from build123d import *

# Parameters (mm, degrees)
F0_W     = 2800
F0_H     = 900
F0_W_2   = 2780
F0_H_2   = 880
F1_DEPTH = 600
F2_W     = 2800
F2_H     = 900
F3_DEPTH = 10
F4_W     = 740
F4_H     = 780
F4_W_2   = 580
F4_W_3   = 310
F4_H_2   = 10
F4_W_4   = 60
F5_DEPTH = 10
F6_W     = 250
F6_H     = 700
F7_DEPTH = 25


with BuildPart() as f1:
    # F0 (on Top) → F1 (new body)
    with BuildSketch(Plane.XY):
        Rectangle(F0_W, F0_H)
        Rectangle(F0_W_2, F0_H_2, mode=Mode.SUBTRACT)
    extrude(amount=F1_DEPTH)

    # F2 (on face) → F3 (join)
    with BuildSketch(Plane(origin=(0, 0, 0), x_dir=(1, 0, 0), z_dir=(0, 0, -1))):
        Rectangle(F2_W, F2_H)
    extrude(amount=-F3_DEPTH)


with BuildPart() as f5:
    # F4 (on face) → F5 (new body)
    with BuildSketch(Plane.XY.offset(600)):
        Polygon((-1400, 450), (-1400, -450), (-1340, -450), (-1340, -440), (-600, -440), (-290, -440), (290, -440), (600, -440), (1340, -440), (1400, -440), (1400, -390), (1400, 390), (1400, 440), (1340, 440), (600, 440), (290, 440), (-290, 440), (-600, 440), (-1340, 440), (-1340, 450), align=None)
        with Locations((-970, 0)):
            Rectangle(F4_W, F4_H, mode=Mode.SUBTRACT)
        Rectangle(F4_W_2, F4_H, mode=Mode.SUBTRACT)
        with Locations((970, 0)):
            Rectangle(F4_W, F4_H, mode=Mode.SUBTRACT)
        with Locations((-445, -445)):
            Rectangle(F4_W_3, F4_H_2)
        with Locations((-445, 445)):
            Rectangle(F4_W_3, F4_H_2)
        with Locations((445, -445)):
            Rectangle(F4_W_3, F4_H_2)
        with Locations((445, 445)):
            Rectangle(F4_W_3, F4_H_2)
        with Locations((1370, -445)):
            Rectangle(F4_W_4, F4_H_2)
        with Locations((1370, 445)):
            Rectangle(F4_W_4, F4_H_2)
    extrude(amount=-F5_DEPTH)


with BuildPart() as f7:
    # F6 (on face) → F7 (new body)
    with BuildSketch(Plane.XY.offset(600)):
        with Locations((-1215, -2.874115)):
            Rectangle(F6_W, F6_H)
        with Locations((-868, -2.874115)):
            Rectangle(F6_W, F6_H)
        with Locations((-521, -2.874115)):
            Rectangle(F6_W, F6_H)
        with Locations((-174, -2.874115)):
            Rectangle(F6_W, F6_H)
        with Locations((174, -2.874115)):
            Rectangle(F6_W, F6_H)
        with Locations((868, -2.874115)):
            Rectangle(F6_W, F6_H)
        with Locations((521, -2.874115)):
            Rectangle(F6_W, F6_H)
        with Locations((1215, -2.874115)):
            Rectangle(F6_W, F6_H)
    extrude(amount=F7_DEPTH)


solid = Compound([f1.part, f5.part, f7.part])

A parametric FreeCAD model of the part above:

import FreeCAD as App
import Part
import Sketcher

V = App.Vector

doc = App.newDocument("Part")
body = doc.addObject("PartDesign::Body", "Body")

sketch1 = doc.addObject("Sketcher::SketchObject", "Sketch")
body.addObject(sketch1)
sketch1.AttachmentSupport = (doc.XY_Plane, [""])
sketch1.MapMode = "FlatFace"
sketch1.addGeometry([
    Part.LineSegment(V(-1400, 450, 0), V(-1400, -450, 0)),
    Part.LineSegment(V(-1400, -450, 0), V(1400, -450, 0)),
    Part.LineSegment(V(1400, -450, 0), V(1400, 450, 0)),
    Part.LineSegment(V(1400, 450, 0), V(-1400, 450, 0)),
    Part.LineSegment(V(1390, -440, 0), V(-1390, -440, 0)),
    Part.LineSegment(V(-1390, -440, 0), V(-1390, 440, 0)),
    Part.LineSegment(V(-1390, 440, 0), V(1390, 440, 0)),
    Part.LineSegment(V(1390, 440, 0), V(1390, -440, 0)),
], False)
sketch1.addConstraint([
    Sketcher.Constraint("Coincident", 0, 2, 1, 1),
    Sketcher.Constraint("Coincident", 1, 2, 2, 1),
    Sketcher.Constraint("Coincident", 2, 2, 3, 1),
    Sketcher.Constraint("Coincident", 3, 2, 0, 1),
    Sketcher.Constraint("Coincident", 4, 2, 5, 1),
    Sketcher.Constraint("Coincident", 5, 2, 6, 1),
    Sketcher.Constraint("Coincident", 6, 2, 7, 1),
    Sketcher.Constraint("Coincident", 7, 2, 4, 1),
    Sketcher.Constraint("Vertical", 0),
    Sketcher.Constraint("Horizontal", 1),
    Sketcher.Constraint("Vertical", 2),
    Sketcher.Constraint("Horizontal", 3),
    Sketcher.Constraint("Horizontal", 4),
    Sketcher.Constraint("Vertical", 5),
    Sketcher.Constraint("Horizontal", 6),
    Sketcher.Constraint("Vertical", 7),
    Sketcher.Constraint("Symmetric", 0, 2, 2, 2, -1, 1),
    Sketcher.Constraint("Symmetric", 4, 2, 6, 2, -1, 1),
    Sketcher.Constraint("DistanceX", 1, 1, 1, 2, 2800.0),
    Sketcher.Constraint("DistanceX", 4, 2, 4, 1, 2780.0),
    Sketcher.Constraint("DistanceY", 0, 2, 0, 1, 900.0),
    Sketcher.Constraint("DistanceY", 5, 1, 5, 2, 880.0),
])
pad1 = doc.addObject("PartDesign::Pad", "Pad")
body.addObject(pad1)
pad1.Profile = sketch1
pad1.Length = 600

sketch2 = doc.addObject("Sketcher::SketchObject", "Sketch001")
body.addObject(sketch2)
sketch2.AttachmentSupport = (doc.XY_Plane, [""])
sketch2.MapMode = "FlatFace"
sketch2.addGeometry([
    Part.LineSegment(V(-1400, -450, 0), V(-1400, 450, 0)),
    Part.LineSegment(V(-1400, 450, 0), V(1400, 450, 0)),
    Part.LineSegment(V(1400, 450, 0), V(1400, -450, 0)),
    Part.LineSegment(V(1400, -450, 0), V(-1400, -450, 0)),
], False)
sketch2.addConstraint([
    Sketcher.Constraint("Coincident", 0, 2, 1, 1),
    Sketcher.Constraint("Coincident", 1, 2, 2, 1),
    Sketcher.Constraint("Coincident", 2, 2, 3, 1),
    Sketcher.Constraint("Coincident", 3, 2, 0, 1),
    Sketcher.Constraint("Vertical", 0),
    Sketcher.Constraint("Horizontal", 1),
    Sketcher.Constraint("Vertical", 2),
    Sketcher.Constraint("Horizontal", 3),
    Sketcher.Constraint("Symmetric", 0, 2, 2, 2, -1, 1),
    Sketcher.Constraint("DistanceX", 1, 1, 1, 2, 2800.0),
    Sketcher.Constraint("DistanceY", 0, 1, 0, 2, 900.0),
])
pad2 = doc.addObject("PartDesign::Pad", "Pad001")
body.addObject(pad2)
pad2.Profile = sketch2
pad2.Length = 10
body2 = doc.addObject("PartDesign::Body", "Body001")

sketch3 = doc.addObject("Sketcher::SketchObject", "Sketch002")
body2.addObject(sketch3)
sketch3.AttachmentSupport = (doc.getObject("XY_Plane001"), [""])
sketch3.MapMode = "FlatFace"
sketch3.AttachmentOffset = App.Placement(V(0, 0, 600), App.Rotation())
sketch3.addGeometry([
    Part.LineSegment(V(-1400, 450, 0), V(-1400, -450, 0)),
    Part.LineSegment(V(-1400, -450, 0), V(-1340, -450, 0)),
    Part.LineSegment(V(-1340, -450, 0), V(-1340, -440, 0)),
    Part.LineSegment(V(-1340, -440, 0), V(-600, -440, 0)),
    Part.LineSegment(V(-600, -440, 0), V(-600, -450, 0)),
    Part.LineSegment(V(-600, -450, 0), V(-290, -450, 0)),
    Part.LineSegment(V(-290, -450, 0), V(-290, -440, 0)),
    Part.LineSegment(V(-290, -440, 0), V(290, -440, 0)),
    Part.LineSegment(V(290, -440, 0), V(290, -450, 0)),
    Part.LineSegment(V(290, -450, 0), V(600, -450, 0)),
    Part.LineSegment(V(600, -450, 0), V(600, -440, 0)),
    Part.LineSegment(V(600, -440, 0), V(1340, -440, 0)),
    Part.LineSegment(V(1340, -440, 0), V(1340, -450, 0)),
    Part.LineSegment(V(1340, -450, 0), V(1400, -450, 0)),
    Part.LineSegment(V(1400, -450, 0), V(1400, 450, 0)),
    Part.LineSegment(V(1400, 450, 0), V(1340, 450, 0)),
    Part.LineSegment(V(1340, 450, 0), V(1340, 440, 0)),
    Part.LineSegment(V(1340, 440, 0), V(600, 440, 0)),
    Part.LineSegment(V(600, 440, 0), V(600, 450, 0)),
    Part.LineSegment(V(600, 450, 0), V(290, 450, 0)),
    Part.LineSegment(V(290, 450, 0), V(290, 440, 0)),
    Part.LineSegment(V(290, 440, 0), V(-290, 440, 0)),
    Part.LineSegment(V(-290, 440, 0), V(-290, 450, 0)),
    Part.LineSegment(V(-290, 450, 0), V(-600, 450, 0)),
    Part.LineSegment(V(-600, 450, 0), V(-600, 440, 0)),
    Part.LineSegment(V(-600, 440, 0), V(-1340, 440, 0)),
    Part.LineSegment(V(-1340, 440, 0), V(-1340, 450, 0)),
    Part.LineSegment(V(-1340, 450, 0), V(-1400, 450, 0)),
    Part.LineSegment(V(-600, -390, 0), V(-1340, -390, 0)),
    Part.LineSegment(V(-1340, -390, 0), V(-1340, 390, 0)),
    Part.LineSegment(V(-1340, 390, 0), V(-600, 390, 0)),
    Part.LineSegment(V(-600, 390, 0), V(-600, -390, 0)),
    Part.LineSegment(V(290, -390, 0), V(-290, -390, 0)),
    Part.LineSegment(V(-290, -390, 0), V(-290, 390, 0)),
    Part.LineSegment(V(-290, 390, 0), V(290, 390, 0)),
    Part.LineSegment(V(290, 390, 0), V(290, -390, 0)),
    Part.LineSegment(V(1340, -390, 0), V(600, -390, 0)),
    Part.LineSegment(V(600, -390, 0), V(600, 390, 0)),
    Part.LineSegment(V(600, 390, 0), V(1340, 390, 0)),
    Part.LineSegment(V(1340, 390, 0), V(1340, -390, 0)),
], False)
sketch3.addConstraint([
    Sketcher.Constraint("Coincident", 0, 2, 1, 1),
    Sketcher.Constraint("Coincident", 1, 2, 2, 1),
    Sketcher.Constraint("Coincident", 2, 2, 3, 1),
    Sketcher.Constraint("Coincident", 3, 2, 4, 1),
    Sketcher.Constraint("Coincident", 4, 2, 5, 1),
    Sketcher.Constraint("Coincident", 5, 2, 6, 1),
    Sketcher.Constraint("Coincident", 6, 2, 7, 1),
    Sketcher.Constraint("Coincident", 7, 2, 8, 1),
    Sketcher.Constraint("Coincident", 8, 2, 9, 1),
    Sketcher.Constraint("Coincident", 9, 2, 10, 1),
    Sketcher.Constraint("Coincident", 10, 2, 11, 1),
    Sketcher.Constraint("Coincident", 11, 2, 12, 1),
    Sketcher.Constraint("Coincident", 12, 2, 13, 1),
    Sketcher.Constraint("Coincident", 13, 2, 14, 1),
    Sketcher.Constraint("Coincident", 14, 2, 15, 1),
    Sketcher.Constraint("Coincident", 15, 2, 16, 1),
    Sketcher.Constraint("Coincident", 16, 2, 17, 1),
    Sketcher.Constraint("Coincident", 17, 2, 18, 1),
    Sketcher.Constraint("Coincident", 18, 2, 19, 1),
    Sketcher.Constraint("Coincident", 19, 2, 20, 1),
    Sketcher.Constraint("Coincident", 20, 2, 21, 1),
    Sketcher.Constraint("Coincident", 21, 2, 22, 1),
    Sketcher.Constraint("Coincident", 22, 2, 23, 1),
    Sketcher.Constraint("Coincident", 23, 2, 24, 1),
    Sketcher.Constraint("Coincident", 24, 2, 25, 1),
    Sketcher.Constraint("Coincident", 25, 2, 26, 1),
    Sketcher.Constraint("Coincident", 26, 2, 27, 1),
    Sketcher.Constraint("Coincident", 27, 2, 0, 1),
    Sketcher.Constraint("Coincident", 28, 2, 29, 1),
    Sketcher.Constraint("Coincident", 29, 2, 30, 1),
    Sketcher.Constraint("Coincident", 30, 2, 31, 1),
    Sketcher.Constraint("Coincident", 31, 2, 28, 1),
    Sketcher.Constraint("Coincident", 32, 2, 33, 1),
    Sketcher.Constraint("Coincident", 33, 2, 34, 1),
    Sketcher.Constraint("Coincident", 34, 2, 35, 1),
    Sketcher.Constraint("Coincident", 35, 2, 32, 1),
    Sketcher.Constraint("Coincident", 36, 2, 37, 1),
    Sketcher.Constraint("Coincident", 37, 2, 38, 1),
    Sketcher.Constraint("Coincident", 38, 2, 39, 1),
    Sketcher.Constraint("Coincident", 39, 2, 36, 1),
    Sketcher.Constraint("Vertical", 0),
    Sketcher.Constraint("Horizontal", 1),
    Sketcher.Constraint("Vertical", 2),
    Sketcher.Constraint("Horizontal", 3),
    Sketcher.Constraint("Vertical", 4),
    Sketcher.Constraint("Horizontal", 5),
    Sketcher.Constraint("Vertical", 6),
    Sketcher.Constraint("Horizontal", 7),
    Sketcher.Constraint("Vertical", 8),
    Sketcher.Constraint("Horizontal", 9),
    Sketcher.Constraint("Vertical", 10),
    Sketcher.Constraint("Horizontal", 11),
    Sketcher.Constraint("Vertical", 12),
    Sketcher.Constraint("Horizontal", 13),
    Sketcher.Constraint("Vertical", 14),
    Sketcher.Constraint("Horizontal", 15),
    Sketcher.Constraint("Vertical", 16),
    Sketcher.Constraint("Horizontal", 17),
    Sketcher.Constraint("Vertical", 18),
    Sketcher.Constraint("Horizontal", 19),
    Sketcher.Constraint("Vertical", 20),
    Sketcher.Constraint("Horizontal", 21),
    Sketcher.Constraint("Vertical", 22),
    Sketcher.Constraint("Horizontal", 23),
    Sketcher.Constraint("Vertical", 24),
    Sketcher.Constraint("Horizontal", 25),
    Sketcher.Constraint("Vertical", 26),
    Sketcher.Constraint("Horizontal", 27),
    Sketcher.Constraint("Horizontal", 28),
    Sketcher.Constraint("Vertical", 29),
    Sketcher.Constraint("Horizontal", 30),
    Sketcher.Constraint("Vertical", 31),
    Sketcher.Constraint("Horizontal", 32),
    Sketcher.Constraint("Vertical", 33),
    Sketcher.Constraint("Horizontal", 34),
    Sketcher.Constraint("Vertical", 35),
    Sketcher.Constraint("Horizontal", 36),
    Sketcher.Constraint("Vertical", 37),
    Sketcher.Constraint("Horizontal", 38),
    Sketcher.Constraint("Vertical", 39),
    Sketcher.Constraint("Symmetric", 0, 2, 14, 2, -1, 1),
    Sketcher.Constraint("Symmetric", 2, 2, 16, 2, -1, 1),
    Sketcher.Constraint("Symmetric", 4, 2, 18, 2, -1, 1),
    Sketcher.Constraint("Symmetric", 6, 2, 20, 2, -1, 1),
    Sketcher.Constraint("Symmetric", 8, 2, 22, 2, -1, 1),
    Sketcher.Constraint("Symmetric", 10, 2, 24, 2, -1, 1),
    Sketcher.Constraint("Symmetric", 12, 2, 26, 2, -1, 1),
    Sketcher.Constraint("Symmetric", 32, 2, 34, 2, -1, 1),
    Sketcher.Constraint("Symmetric", 30, 2, 36, 2, -1, 1),
    Sketcher.Constraint("Symmetric", 28, 2, 38, 2, -1, 1),
    Sketcher.Constraint("Symmetric", 5, 2, 8, 2, -2),
    Sketcher.Constraint("Symmetric", 3, 2, 10, 2, -2),
    Sketcher.Constraint("Symmetric", 1, 2, 12, 2, -2),
    Sketcher.Constraint("Horizontal", 1, 2, 4, 2),
    Sketcher.Constraint("Horizontal", 3, 2, 6, 2),
    Sketcher.Constraint("Horizontal", 31, 2, 32, 2),
    Sketcher.Constraint("Horizontal", 30, 2, 33, 2),
    Sketcher.Constraint("Vertical", 26, 2, 28, 2),
    Sketcher.Constraint("Vertical", 24, 2, 30, 2),
    Sketcher.Constraint("Vertical", 22, 2, 32, 2),
    Sketcher.Constraint("DistanceX", 1, 1, 1, 2, 60.0),
    Sketcher.Constraint("DistanceX", 3, 1, 3, 2, 740.0),
    Sketcher.Constraint("DistanceX", 5, 1, 5, 2, 310.0),
    Sketcher.Constraint("DistanceX", 7, 1, 7, 2, 580.0),
    Sketcher.Constraint("DistanceY", 0, 2, 0, 1, 900.0),
    Sketcher.Constraint("DistanceY", 2, 1, 2, 2, 10.0),
    Sketcher.Constraint("DistanceY", 29, 1, 29, 2, 780.0),
])
pad3 = doc.addObject("PartDesign::Pad", "Pad002")
body2.addObject(pad3)
pad3.Profile = sketch3
pad3.Length = 10
pad3.Reversed = True
body3 = doc.addObject("PartDesign::Body", "Body002")
body3.AllowCompound = True

sketch4 = doc.addObject("Sketcher::SketchObject", "Sketch003")
body3.addObject(sketch4)
sketch4.AttachmentSupport = (doc.getObject("XY_Plane002"), [""])
sketch4.MapMode = "FlatFace"
sketch4.AttachmentOffset = App.Placement(V(0, 0, 600), App.Rotation())
sketch4.addGeometry([
    Part.LineSegment(V(-1340, 347.125885, 0), V(-1340, -352.874115, 0)),
    Part.LineSegment(V(-1340, -352.874115, 0), V(-1090, -352.874115, 0)),
    Part.LineSegment(V(-1090, -352.874115, 0), V(-1090, 347.125885, 0)),
    Part.LineSegment(V(-1090, 347.125885, 0), V(-1340, 347.125885, 0)),
    Part.LineSegment(V(-993, 347.125885, 0), V(-993, -352.874115, 0)),
    Part.LineSegment(V(-993, -352.874115, 0), V(-743, -352.874115, 0)),
    Part.LineSegment(V(-743, -352.874115, 0), V(-743, 347.125885, 0)),
    Part.LineSegment(V(-743, 347.125885, 0), V(-993, 347.125885, 0)),
    Part.LineSegment(V(-646, 347.125885, 0), V(-646, -352.874115, 0)),
    Part.LineSegment(V(-646, -352.874115, 0), V(-396, -352.874115, 0)),
    Part.LineSegment(V(-396, -352.874115, 0), V(-396, 347.125885, 0)),
    Part.LineSegment(V(-396, 347.125885, 0), V(-646, 347.125885, 0)),
    Part.LineSegment(V(-299, 347.125885, 0), V(-299, -352.874115, 0)),
    Part.LineSegment(V(-299, -352.874115, 0), V(-49, -352.874115, 0)),
    Part.LineSegment(V(-49, -352.874115, 0), V(-49, 347.125885, 0)),
    Part.LineSegment(V(-49, 347.125885, 0), V(-299, 347.125885, 0)),
    Part.LineSegment(V(49, 347.125885, 0), V(49, -352.874115, 0)),
    Part.LineSegment(V(49, -352.874115, 0), V(299, -352.874115, 0)),
    Part.LineSegment(V(299, -352.874115, 0), V(299, 347.125885, 0)),
    Part.LineSegment(V(299, 347.125885, 0), V(49, 347.125885, 0)),
    Part.LineSegment(V(743, 347.125885, 0), V(743, -352.874115, 0)),
    Part.LineSegment(V(743, -352.874115, 0), V(993, -352.874115, 0)),
    Part.LineSegment(V(993, -352.874115, 0), V(993, 347.125885, 0)),
    Part.LineSegment(V(993, 347.125885, 0), V(743, 347.125885, 0)),
    Part.LineSegment(V(396, 347.125885, 0), V(396, -352.874115, 0)),
    Part.LineSegment(V(396, -352.874115, 0), V(646, -352.874115, 0)),
    Part.LineSegment(V(646, -352.874115, 0), V(646, 347.125885, 0)),
    Part.LineSegment(V(646, 347.125885, 0), V(396, 347.125885, 0)),
    Part.LineSegment(V(1090, 347.125885, 0), V(1090, -352.874115, 0)),
    Part.LineSegment(V(1090, -352.874115, 0), V(1340, -352.874115, 0)),
    Part.LineSegment(V(1340, -352.874115, 0), V(1340, 347.125885, 0)),
    Part.LineSegment(V(1340, 347.125885, 0), V(1090, 347.125885, 0)),
], False)
sketch4.addConstraint([
    Sketcher.Constraint("Coincident", 0, 2, 1, 1),
    Sketcher.Constraint("Coincident", 1, 2, 2, 1),
    Sketcher.Constraint("Coincident", 2, 2, 3, 1),
    Sketcher.Constraint("Coincident", 3, 2, 0, 1),
    Sketcher.Constraint("Coincident", 4, 2, 5, 1),
    Sketcher.Constraint("Coincident", 5, 2, 6, 1),
    Sketcher.Constraint("Coincident", 6, 2, 7, 1),
    Sketcher.Constraint("Coincident", 7, 2, 4, 1),
    Sketcher.Constraint("Coincident", 8, 2, 9, 1),
    Sketcher.Constraint("Coincident", 9, 2, 10, 1),
    Sketcher.Constraint("Coincident", 10, 2, 11, 1),
    Sketcher.Constraint("Coincident", 11, 2, 8, 1),
    Sketcher.Constraint("Coincident", 12, 2, 13, 1),
    Sketcher.Constraint("Coincident", 13, 2, 14, 1),
    Sketcher.Constraint("Coincident", 14, 2, 15, 1),
    Sketcher.Constraint("Coincident", 15, 2, 12, 1),
    Sketcher.Constraint("Coincident", 16, 2, 17, 1),
    Sketcher.Constraint("Coincident", 17, 2, 18, 1),
    Sketcher.Constraint("Coincident", 18, 2, 19, 1),
    Sketcher.Constraint("Coincident", 19, 2, 16, 1),
    Sketcher.Constraint("Coincident", 20, 2, 21, 1),
    Sketcher.Constraint("Coincident", 21, 2, 22, 1),
    Sketcher.Constraint("Coincident", 22, 2, 23, 1),
    Sketcher.Constraint("Coincident", 23, 2, 20, 1),
    Sketcher.Constraint("Coincident", 24, 2, 25, 1),
    Sketcher.Constraint("Coincident", 25, 2, 26, 1),
    Sketcher.Constraint("Coincident", 26, 2, 27, 1),
    Sketcher.Constraint("Coincident", 27, 2, 24, 1),
    Sketcher.Constraint("Coincident", 28, 2, 29, 1),
    Sketcher.Constraint("Coincident", 29, 2, 30, 1),
    Sketcher.Constraint("Coincident", 30, 2, 31, 1),
    Sketcher.Constraint("Coincident", 31, 2, 28, 1),
    Sketcher.Constraint("Vertical", 0),
    Sketcher.Constraint("Horizontal", 1),
    Sketcher.Constraint("Vertical", 2),
    Sketcher.Constraint("Horizontal", 3),
    Sketcher.Constraint("Vertical", 4),
    Sketcher.Constraint("Horizontal", 5),
    Sketcher.Constraint("Vertical", 6),
    Sketcher.Constraint("Horizontal", 7),
    Sketcher.Constraint("Vertical", 8),
    Sketcher.Constraint("Horizontal", 9),
    Sketcher.Constraint("Vertical", 10),
    Sketcher.Constraint("Horizontal", 11),
    Sketcher.Constraint("Vertical", 12),
    Sketcher.Constraint("Horizontal", 13),
    Sketcher.Constraint("Vertical", 14),
    Sketcher.Constraint("Horizontal", 15),
    Sketcher.Constraint("Vertical", 16),
    Sketcher.Constraint("Horizontal", 17),
    Sketcher.Constraint("Vertical", 18),
    Sketcher.Constraint("Horizontal", 19),
    Sketcher.Constraint("Vertical", 20),
    Sketcher.Constraint("Horizontal", 21),
    Sketcher.Constraint("Vertical", 22),
    Sketcher.Constraint("Horizontal", 23),
    Sketcher.Constraint("Vertical", 24),
    Sketcher.Constraint("Horizontal", 25),
    Sketcher.Constraint("Vertical", 26),
    Sketcher.Constraint("Horizontal", 27),
    Sketcher.Constraint("Vertical", 28),
    Sketcher.Constraint("Horizontal", 29),
    Sketcher.Constraint("Vertical", 30),
    Sketcher.Constraint("Horizontal", 31),
    Sketcher.Constraint("Symmetric", 13, 2, 16, 2, -2),
    Sketcher.Constraint("Symmetric", 15, 2, 18, 2, -2),
    Sketcher.Constraint("Symmetric", 5, 2, 20, 2, -2),
    Sketcher.Constraint("Symmetric", 7, 2, 22, 2, -2),
    Sketcher.Constraint("Symmetric", 9, 2, 24, 2, -2),
    Sketcher.Constraint("Symmetric", 11, 2, 26, 2, -2),
    Sketcher.Constraint("Symmetric", 1, 2, 28, 2, -2),
    Sketcher.Constraint("Symmetric", 3, 2, 30, 2, -2),
    Sketcher.Constraint("Horizontal", 1, 2, 4, 2),
    Sketcher.Constraint("Horizontal", 3, 2, 6, 2),
    Sketcher.Constraint("Horizontal", 5, 2, 8, 2),
    Sketcher.Constraint("Horizontal", 7, 2, 10, 2),
    Sketcher.Constraint("Horizontal", 9, 2, 12, 2),
    Sketcher.Constraint("Horizontal", 11, 2, 14, 2),
    Sketcher.Constraint("Equal", 3, 5),
    Sketcher.Constraint("Equal", 7, 9),
    Sketcher.Constraint("Equal", 11, 13),
    Sketcher.Constraint("DistanceX", 1, 1, 1, 2, 250.0),
    Sketcher.Constraint("DistanceY", 0, 2, 0, 1, 700.0),
    Sketcher.Constraint("DistanceX", 0, 2, -1, 1, 1340.0),
    Sketcher.Constraint("DistanceX", 4, 2, -1, 1, 993.0),
    Sketcher.Constraint("DistanceX", 8, 2, -1, 1, 646.0),
    Sketcher.Constraint("DistanceX", 12, 2, -1, 1, 299.0),
    Sketcher.Constraint("DistanceY", 0, 2, -1, 1, 352.874115),
])
pad4 = doc.addObject("PartDesign::Pad", "Pad003")
body3.addObject(pad4)
pad4.Profile = sketch4
pad4.Length = 25

doc.recompute()
